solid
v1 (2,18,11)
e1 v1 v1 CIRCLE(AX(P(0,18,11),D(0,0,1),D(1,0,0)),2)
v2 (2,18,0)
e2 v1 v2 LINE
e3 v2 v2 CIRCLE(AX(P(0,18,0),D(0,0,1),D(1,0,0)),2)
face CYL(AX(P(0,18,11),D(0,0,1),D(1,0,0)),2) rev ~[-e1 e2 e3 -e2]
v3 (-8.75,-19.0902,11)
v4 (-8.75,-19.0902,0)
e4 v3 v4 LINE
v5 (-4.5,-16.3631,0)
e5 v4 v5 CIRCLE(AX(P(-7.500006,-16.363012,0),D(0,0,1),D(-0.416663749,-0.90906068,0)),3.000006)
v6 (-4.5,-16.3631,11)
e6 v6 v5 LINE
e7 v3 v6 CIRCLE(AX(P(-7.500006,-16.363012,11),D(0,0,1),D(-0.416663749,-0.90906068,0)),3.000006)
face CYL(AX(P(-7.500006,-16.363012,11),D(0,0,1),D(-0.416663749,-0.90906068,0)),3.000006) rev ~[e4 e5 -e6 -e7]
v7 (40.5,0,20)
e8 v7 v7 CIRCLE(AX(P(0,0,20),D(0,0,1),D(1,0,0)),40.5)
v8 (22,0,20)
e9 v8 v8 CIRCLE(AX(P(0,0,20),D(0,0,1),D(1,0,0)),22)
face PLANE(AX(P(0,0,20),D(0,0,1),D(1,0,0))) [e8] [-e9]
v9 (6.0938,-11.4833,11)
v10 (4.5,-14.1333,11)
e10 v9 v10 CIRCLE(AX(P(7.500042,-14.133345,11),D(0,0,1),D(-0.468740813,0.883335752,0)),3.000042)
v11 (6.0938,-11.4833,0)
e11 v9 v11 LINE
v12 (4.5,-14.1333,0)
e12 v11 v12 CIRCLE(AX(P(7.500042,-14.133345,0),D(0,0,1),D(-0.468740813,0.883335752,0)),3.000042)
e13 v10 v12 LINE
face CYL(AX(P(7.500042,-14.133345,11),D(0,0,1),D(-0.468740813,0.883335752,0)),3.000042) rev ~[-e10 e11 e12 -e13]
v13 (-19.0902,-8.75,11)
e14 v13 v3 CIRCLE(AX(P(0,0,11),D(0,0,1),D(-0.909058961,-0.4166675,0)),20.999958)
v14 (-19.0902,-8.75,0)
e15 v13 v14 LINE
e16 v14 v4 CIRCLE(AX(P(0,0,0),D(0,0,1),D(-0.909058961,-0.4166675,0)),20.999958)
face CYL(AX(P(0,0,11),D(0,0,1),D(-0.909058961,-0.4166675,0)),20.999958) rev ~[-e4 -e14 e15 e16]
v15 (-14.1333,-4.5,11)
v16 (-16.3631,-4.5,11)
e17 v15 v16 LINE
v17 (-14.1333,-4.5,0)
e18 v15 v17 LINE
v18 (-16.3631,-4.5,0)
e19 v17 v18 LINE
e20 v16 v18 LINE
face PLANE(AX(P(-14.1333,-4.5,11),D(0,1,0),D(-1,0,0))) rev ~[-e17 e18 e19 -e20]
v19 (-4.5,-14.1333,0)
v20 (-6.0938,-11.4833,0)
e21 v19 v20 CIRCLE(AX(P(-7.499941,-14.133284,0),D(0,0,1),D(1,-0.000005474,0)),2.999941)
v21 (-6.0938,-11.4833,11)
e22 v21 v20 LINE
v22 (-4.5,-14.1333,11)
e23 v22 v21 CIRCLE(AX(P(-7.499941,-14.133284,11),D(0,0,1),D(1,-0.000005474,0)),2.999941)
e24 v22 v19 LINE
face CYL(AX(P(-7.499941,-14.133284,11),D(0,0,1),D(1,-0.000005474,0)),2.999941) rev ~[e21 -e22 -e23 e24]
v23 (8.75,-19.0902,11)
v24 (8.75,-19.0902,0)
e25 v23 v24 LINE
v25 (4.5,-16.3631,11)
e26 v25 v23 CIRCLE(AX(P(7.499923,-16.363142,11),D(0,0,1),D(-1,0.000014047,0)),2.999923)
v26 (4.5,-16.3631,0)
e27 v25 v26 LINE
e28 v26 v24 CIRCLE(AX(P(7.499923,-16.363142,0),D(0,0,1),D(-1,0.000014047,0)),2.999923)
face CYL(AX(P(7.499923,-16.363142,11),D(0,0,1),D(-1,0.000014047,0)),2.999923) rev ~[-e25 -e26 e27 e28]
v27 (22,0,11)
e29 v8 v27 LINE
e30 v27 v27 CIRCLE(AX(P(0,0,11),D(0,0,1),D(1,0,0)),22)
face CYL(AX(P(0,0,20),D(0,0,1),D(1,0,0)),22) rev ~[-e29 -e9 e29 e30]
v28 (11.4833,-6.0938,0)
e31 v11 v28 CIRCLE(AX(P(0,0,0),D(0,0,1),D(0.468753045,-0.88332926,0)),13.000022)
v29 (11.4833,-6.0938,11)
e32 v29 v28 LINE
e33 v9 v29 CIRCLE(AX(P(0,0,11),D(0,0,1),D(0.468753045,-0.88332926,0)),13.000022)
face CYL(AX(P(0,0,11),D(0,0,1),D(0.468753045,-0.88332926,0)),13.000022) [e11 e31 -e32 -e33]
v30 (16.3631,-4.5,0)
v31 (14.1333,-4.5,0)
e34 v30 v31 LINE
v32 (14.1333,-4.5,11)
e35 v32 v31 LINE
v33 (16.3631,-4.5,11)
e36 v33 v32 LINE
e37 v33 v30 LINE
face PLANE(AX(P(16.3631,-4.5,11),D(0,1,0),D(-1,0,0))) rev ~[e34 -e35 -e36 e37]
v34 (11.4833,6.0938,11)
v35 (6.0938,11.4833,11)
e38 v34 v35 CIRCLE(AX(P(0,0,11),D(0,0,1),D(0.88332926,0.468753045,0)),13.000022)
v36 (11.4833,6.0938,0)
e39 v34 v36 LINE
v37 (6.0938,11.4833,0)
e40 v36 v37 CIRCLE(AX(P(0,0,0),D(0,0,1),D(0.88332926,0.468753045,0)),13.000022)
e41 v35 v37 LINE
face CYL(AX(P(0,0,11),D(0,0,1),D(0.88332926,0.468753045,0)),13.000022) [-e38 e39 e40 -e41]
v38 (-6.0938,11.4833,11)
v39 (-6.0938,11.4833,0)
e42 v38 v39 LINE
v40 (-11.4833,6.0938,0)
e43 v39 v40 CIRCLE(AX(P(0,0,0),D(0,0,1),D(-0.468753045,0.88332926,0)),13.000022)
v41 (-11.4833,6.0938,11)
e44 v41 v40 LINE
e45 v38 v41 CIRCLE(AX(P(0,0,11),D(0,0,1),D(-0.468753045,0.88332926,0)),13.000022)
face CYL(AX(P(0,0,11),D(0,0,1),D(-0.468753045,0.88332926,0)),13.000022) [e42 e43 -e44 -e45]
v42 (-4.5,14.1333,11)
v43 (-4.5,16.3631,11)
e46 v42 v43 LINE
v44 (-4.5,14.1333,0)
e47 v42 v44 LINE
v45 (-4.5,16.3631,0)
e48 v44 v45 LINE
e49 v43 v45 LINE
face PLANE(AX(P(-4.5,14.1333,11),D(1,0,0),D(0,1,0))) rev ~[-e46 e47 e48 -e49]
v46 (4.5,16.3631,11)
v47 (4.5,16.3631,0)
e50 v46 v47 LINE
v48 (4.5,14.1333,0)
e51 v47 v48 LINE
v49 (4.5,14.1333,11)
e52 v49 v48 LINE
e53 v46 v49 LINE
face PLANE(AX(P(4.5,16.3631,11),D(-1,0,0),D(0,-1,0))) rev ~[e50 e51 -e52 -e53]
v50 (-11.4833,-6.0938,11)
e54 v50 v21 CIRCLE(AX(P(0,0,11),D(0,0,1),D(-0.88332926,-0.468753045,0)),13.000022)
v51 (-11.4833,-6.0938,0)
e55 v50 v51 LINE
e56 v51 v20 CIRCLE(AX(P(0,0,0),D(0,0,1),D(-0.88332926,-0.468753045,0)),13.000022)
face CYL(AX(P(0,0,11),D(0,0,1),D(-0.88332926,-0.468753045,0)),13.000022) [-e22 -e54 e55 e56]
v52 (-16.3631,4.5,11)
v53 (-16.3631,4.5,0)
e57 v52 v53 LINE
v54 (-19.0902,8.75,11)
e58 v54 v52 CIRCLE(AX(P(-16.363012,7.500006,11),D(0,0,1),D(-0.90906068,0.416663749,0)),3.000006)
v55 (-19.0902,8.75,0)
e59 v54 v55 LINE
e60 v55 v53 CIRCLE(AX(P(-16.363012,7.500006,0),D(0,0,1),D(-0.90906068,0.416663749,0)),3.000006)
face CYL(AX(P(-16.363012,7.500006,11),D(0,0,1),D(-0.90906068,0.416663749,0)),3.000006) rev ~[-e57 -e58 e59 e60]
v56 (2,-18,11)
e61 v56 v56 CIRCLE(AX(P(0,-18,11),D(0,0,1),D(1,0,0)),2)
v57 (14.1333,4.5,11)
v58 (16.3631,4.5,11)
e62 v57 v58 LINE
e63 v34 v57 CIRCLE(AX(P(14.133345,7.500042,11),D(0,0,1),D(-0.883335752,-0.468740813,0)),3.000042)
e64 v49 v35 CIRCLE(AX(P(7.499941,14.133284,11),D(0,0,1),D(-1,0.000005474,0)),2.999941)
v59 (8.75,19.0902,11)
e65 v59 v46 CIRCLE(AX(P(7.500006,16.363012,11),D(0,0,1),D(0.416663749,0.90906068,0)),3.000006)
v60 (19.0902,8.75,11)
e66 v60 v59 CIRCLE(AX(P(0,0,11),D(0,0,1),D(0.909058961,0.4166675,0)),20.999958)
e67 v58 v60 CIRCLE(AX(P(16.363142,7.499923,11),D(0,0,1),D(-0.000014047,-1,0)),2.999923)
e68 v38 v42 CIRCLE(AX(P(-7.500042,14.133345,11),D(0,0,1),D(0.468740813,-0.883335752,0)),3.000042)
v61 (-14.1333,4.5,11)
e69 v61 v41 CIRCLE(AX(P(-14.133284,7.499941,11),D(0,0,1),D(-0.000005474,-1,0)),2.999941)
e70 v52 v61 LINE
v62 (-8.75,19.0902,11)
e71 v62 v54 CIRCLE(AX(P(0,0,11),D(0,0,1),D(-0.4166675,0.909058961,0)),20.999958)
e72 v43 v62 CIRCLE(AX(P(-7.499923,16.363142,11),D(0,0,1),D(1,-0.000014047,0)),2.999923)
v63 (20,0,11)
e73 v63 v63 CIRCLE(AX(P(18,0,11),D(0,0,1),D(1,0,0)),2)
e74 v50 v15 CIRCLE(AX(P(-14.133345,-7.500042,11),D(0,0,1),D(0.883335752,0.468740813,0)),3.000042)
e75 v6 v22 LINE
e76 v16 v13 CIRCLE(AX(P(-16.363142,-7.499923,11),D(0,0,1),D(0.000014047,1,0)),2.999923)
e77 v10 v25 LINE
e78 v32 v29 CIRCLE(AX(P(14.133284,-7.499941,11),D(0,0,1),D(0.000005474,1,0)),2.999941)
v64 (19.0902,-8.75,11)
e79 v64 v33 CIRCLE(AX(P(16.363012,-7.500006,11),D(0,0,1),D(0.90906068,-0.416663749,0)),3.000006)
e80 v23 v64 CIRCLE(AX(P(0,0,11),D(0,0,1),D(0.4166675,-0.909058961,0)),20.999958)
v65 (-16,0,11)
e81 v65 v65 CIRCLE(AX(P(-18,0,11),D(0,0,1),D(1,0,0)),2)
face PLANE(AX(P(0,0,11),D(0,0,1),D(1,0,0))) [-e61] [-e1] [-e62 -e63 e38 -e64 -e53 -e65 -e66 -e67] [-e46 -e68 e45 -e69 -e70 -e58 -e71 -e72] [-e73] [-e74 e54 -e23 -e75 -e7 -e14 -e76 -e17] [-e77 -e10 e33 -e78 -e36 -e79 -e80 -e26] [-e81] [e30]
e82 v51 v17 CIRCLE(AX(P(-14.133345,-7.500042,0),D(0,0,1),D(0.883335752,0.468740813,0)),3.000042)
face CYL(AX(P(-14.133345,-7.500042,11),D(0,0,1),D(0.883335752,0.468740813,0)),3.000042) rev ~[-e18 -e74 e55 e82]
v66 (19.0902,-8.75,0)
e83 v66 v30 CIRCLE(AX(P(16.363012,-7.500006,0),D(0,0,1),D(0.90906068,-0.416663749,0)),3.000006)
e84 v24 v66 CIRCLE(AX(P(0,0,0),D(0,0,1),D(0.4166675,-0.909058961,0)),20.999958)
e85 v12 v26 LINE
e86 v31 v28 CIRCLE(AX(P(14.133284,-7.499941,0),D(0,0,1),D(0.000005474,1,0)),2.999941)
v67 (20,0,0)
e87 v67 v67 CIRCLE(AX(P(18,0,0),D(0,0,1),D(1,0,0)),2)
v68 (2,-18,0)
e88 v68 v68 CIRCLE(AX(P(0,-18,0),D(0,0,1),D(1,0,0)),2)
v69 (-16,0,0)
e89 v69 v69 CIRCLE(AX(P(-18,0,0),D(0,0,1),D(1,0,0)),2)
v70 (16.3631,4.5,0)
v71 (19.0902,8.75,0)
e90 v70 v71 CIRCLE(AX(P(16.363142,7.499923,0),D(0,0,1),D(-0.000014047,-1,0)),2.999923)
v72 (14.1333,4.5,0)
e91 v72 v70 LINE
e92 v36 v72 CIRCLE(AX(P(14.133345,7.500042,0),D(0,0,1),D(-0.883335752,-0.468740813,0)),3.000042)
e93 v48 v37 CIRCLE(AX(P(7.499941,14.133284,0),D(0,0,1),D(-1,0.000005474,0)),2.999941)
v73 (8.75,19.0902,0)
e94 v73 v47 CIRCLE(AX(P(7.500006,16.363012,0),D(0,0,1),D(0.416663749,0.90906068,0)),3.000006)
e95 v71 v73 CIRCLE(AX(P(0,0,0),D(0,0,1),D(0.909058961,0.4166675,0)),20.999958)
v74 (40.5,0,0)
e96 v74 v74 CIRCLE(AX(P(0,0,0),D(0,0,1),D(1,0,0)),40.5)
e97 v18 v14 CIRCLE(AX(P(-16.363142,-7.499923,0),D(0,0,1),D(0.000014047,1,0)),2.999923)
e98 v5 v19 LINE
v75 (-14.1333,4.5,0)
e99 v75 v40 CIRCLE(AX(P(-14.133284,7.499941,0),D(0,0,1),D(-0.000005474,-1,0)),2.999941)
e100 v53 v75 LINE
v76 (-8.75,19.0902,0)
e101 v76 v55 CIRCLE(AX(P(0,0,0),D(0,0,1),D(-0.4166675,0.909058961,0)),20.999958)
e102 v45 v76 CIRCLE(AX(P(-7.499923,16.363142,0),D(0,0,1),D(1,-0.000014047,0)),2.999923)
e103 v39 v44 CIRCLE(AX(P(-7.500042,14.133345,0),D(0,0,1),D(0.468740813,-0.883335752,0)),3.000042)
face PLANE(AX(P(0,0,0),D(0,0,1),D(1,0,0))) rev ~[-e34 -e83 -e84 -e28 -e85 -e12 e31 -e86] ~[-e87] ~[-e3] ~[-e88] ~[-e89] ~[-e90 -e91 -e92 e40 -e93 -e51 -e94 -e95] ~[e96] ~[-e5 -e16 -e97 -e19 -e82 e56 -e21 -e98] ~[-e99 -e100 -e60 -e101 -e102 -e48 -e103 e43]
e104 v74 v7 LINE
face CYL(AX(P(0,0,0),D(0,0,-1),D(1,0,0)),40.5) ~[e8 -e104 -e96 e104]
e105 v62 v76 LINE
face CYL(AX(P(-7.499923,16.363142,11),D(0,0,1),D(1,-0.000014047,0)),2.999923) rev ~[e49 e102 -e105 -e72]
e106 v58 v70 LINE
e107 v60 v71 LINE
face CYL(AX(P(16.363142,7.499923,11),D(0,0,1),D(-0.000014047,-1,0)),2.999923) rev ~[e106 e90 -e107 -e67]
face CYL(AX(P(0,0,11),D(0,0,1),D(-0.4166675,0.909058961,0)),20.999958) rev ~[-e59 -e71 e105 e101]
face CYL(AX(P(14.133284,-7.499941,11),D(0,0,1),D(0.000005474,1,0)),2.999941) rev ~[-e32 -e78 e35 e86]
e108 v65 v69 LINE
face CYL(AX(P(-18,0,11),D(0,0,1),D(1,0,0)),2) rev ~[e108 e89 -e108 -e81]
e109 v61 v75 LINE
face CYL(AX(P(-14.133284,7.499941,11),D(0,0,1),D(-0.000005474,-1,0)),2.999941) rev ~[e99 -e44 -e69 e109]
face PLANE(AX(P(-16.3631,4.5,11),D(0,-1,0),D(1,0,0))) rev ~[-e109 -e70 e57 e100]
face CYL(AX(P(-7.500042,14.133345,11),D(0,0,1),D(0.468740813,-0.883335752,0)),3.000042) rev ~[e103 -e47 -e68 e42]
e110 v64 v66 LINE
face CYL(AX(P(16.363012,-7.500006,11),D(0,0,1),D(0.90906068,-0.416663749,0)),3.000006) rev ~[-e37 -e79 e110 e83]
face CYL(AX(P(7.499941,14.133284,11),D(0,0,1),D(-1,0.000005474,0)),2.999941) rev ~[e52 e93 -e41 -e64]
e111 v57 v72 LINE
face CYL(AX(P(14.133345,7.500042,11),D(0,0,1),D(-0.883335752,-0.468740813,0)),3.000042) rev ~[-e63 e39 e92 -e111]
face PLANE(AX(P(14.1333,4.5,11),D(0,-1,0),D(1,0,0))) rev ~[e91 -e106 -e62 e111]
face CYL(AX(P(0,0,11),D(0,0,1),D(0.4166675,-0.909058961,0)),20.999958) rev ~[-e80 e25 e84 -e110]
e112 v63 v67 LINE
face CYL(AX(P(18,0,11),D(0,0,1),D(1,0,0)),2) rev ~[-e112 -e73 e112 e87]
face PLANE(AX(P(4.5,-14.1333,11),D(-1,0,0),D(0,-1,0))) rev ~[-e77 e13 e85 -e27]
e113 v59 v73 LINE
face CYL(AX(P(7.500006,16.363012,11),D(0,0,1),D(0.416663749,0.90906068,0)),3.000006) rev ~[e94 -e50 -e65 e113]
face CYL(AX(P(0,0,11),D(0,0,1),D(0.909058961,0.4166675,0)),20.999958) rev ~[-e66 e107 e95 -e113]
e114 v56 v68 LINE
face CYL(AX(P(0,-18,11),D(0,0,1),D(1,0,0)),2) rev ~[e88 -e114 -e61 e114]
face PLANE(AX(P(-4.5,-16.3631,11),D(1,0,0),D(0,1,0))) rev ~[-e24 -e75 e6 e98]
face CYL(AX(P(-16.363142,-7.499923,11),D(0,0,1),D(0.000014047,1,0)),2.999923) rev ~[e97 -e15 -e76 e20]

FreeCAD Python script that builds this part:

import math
import FreeCAD as App
import Part
import Sketcher

V = App.Vector
Q = App.Units.Quantity

doc = App.newDocument("Part")
body = doc.addObject("PartDesign::Body", "Body")

sketch1 = doc.addObject("Sketcher::SketchObject", "Sketch")
body.addObject(sketch1)
sketch1.AttachmentSupport = (doc.XY_Plane, [""])
sketch1.MapMode = "FlatFace"
sketch1.addGeometry(Part.Circle(V(0, 0, 0), V(0, 0, 1), 40), False)
sketch1.addConstraint([
    Sketcher.Constraint("Coincident", 0, 3, -1, 1),
    Sketcher.Constraint("Diameter", 0, Q("81 mm")),
])
pad1 = doc.addObject("PartDesign::Pad", "Pad")
body.addObject(pad1)
pad1.Profile = sketch1
pad1.Length = 20

sketch2 = doc.addObject("Sketcher::SketchObject", "Sketch001")
body.addObject(sketch2)
sketch2.AttachmentSupport = (doc.XY_Plane, [""])
sketch2.MapMode = "FlatFace"
sketch2.AttachmentOffset = App.Placement(V(0, 0, 20), App.Rotation())
sketch2.addGeometry(Part.Circle(V(0, 0, 0), V(0, 0, 1), 22), False)
sketch2.addConstraint([
    Sketcher.Constraint("Coincident", 0, 3, -1, 1),
    Sketcher.Constraint("Diameter", 0, Q("44 mm")),
])
pocket1 = doc.addObject("PartDesign::Pocket", "Pocket")
body.addObject(pocket1)
pocket1.Profile = sketch2
pocket1.Length = 9

sketch3 = doc.addObject("Sketcher::SketchObject", "Sketch002")
body.addObject(sketch3)
sketch3.AttachmentSupport = (doc.XY_Plane, [""])
sketch3.MapMode = "FlatFace"
sketch3.AttachmentOffset = App.Placement(V(0, 0, 11), App.Rotation())
sketch3.addGeometry([
    Part.Circle(V(0, 18, 0), V(0, 0, 1), 2),
    Part.Circle(V(-18, 0, 0), V(0, 0, 1), 2),
    Part.Circle(V(0, -18, 0), V(0, 0, 1), 2),
    Part.Circle(V(18, 0, 0), V(0, 0, 1), 2),
], False)
sketch3.addConstraint([
    Sketcher.Constraint("Equal", 0, 1),
    Sketcher.Constraint("Equal", 1, 2),
    Sketcher.Constraint("Equal", 2, 3),
    Sketcher.Constraint("Symmetric", 0, 3, 2, 3, -1, 1),
    Sketcher.Constraint("Symmetric", 1, 3, 3, 3, -1, 1),
    Sketcher.Constraint("PointOnObject", 0, 3, -2),
    Sketcher.Constraint("PointOnObject", 1, 3, -1),
    Sketcher.Constraint("Diameter", 0, Q("4 mm")),
    Sketcher.Constraint("DistanceY", -1, 1, 0, 3, Q("18 mm")),
    Sketcher.Constraint("DistanceX", 1, 3, -1, 1, Q("18 mm")),
])
pocket2 = doc.addObject("PartDesign::Pocket", "Pocket001")
body.addObject(pocket2)
pocket2.Profile = sketch3
pocket2.Length = 12.75

sketch4 = doc.addObject("Sketcher::SketchObject", "Sketch003")
body.addObject(sketch4)
sketch4.AttachmentSupport = (doc.XY_Plane, [""])
sketch4.MapMode = "FlatFace"
sketch4.AttachmentOffset = App.Placement(V(0, 0, 11), App.Rotation())
sketch4.addGeometry([
    Part.LineSegment(V(-16.4, 4.5, 0), V(-14.1, 4.5, 0)),
    Part.ArcOfCircle(Part.Circle(V(-14.1, 7.5, 0), V(0, 0, 1), 3), math.radians(-90), math.radians(-28)),
    Part.ArcOfCircle(Part.Circle(V(0, 0, 0), V(0, 0, 1), 13), math.radians(118), math.radians(152)),
    Part.ArcOfCircle(Part.Circle(V(-7.5, 14.1, 0), V(0, 0, 1), 3), math.radians(-62), math.radians(0)),
    Part.LineSegment(V(-4.5, 14.1, 0), V(-4.5, 16.4, 0)),
    Part.ArcOfCircle(Part.Circle(V(-7.5, 16.4, 0), V(0, 0, 1), 3), math.radians(0), math.radians(115)),
    Part.ArcOfCircle(Part.Circle(V(0, 0, 0), V(0, 0, 1), 21), math.radians(115), math.radians(155)),
    Part.ArcOfCircle(Part.Circle(V(-16.4, 7.5, 0), V(0, 0, 1), 3), math.radians(155), math.radians(270)),
    Part.ArcOfCircle(Part.Circle(V(0, 0, 0), V(0, 0, 1), 13), math.radians(-152), math.radians(-118)),
    Part.ArcOfCircle(Part.Circle(V(-14.1, -7.5, 0), V(0, 0, 1), 3), math.radians(28), math.radians(90)),
    Part.LineSegment(V(-14.1, -4.5, 0), V(-16.4, -4.5, 0)),
    Part.ArcOfCircle(Part.Circle(V(-16.4, -7.5, 0), V(0, 0, 1), 3), math.radians(90), math.radians(205)),
    Part.ArcOfCircle(Part.Circle(V(0, 0, 0), V(0, 0, 1), 21), math.radians(-155), math.radians(-115)),
    Part.ArcOfCircle(Part.Circle(V(-7.5, -16.4, 0), V(0, 0, 1), 3), math.radians(-115), math.radians(0)),
    Part.LineSegment(V(-4.5, -16.4, 0), V(-4.5, -14.1, 0)),
    Part.ArcOfCircle(Part.Circle(V(-7.5, -14.1, 0), V(0, 0, 1), 3), math.radians(0), math.radians(62)),
    Part.ArcOfCircle(Part.Circle(V(0, 0, 0), V(0, 0, 1), 13), math.radians(-62), math.radians(-28)),
    Part.ArcOfCircle(Part.Circle(V(7.5, -14.1, 0), V(0, 0, 1), 3), math.radians(118), math.radians(180)),
    Part.LineSegment(V(4.5, -14.1, 0), V(4.5, -16.4, 0)),
    Part.ArcOfCircle(Part.Circle(V(7.5, -16.4, 0), V(0, 0, 1), 3), math.radians(180), math.radians(295)),
    Part.ArcOfCircle(Part.Circle(V(0, 0, 0), V(0, 0, 1), 21), math.radians(-65), math.radians(-25)),
    Part.ArcOfCircle(Part.Circle(V(16.4, -7.5, 0), V(0, 0, 1), 3), math.radians(-25), math.radians(90)),
    Part.LineSegment(V(16.4, -4.5, 0), V(14.1, -4.5, 0)),
    Part.ArcOfCircle(Part.Circle(V(14.1, -7.5, 0), V(0, 0, 1), 3), math.radians(90), math.radians(152)),
    Part.ArcOfCircle(Part.Circle(V(0, 0, 0), V(0, 0, 1), 13), math.radians(28), math.radians(62)),
    Part.ArcOfCircle(Part.Circle(V(14.1, 7.5, 0), V(0, 0, 1), 3), math.radians(-152), math.radians(-90)),
    Part.LineSegment(V(14.1, 4.5, 0), V(16.4, 4.5, 0)),
    Part.ArcOfCircle(Part.Circle(V(16.4, 7.5, 0), V(0, 0, 1), 3), math.radians(-90), math.radians(25)),
    Part.ArcOfCircle(Part.Circle(V(0, 0, 0), V(0, 0, 1), 21), math.radians(25), math.radians(65)),
    Part.ArcOfCircle(Part.Circle(V(7.5, 16.4, 0), V(0, 0, 1), 3), math.radians(65), math.radians(180)),
    Part.LineSegment(V(4.5, 16.4, 0), V(4.5, 14.1, 0)),
    Part.ArcOfCircle(Part.Circle(V(7.5, 14.1, 0), V(0, 0, 1), 3), math.radians(180), math.radians(242)),
], False)
sketch4.addConstraint([
    Sketcher.Constraint("Tangent", 0, 2, 1, 1),
    Sketcher.Constraint("Tangent", 1, 2, 2, 2),
    Sketcher.Constraint("Tangent", 2, 1, 3, 1),
    Sketcher.Constraint("Tangent", 3, 2, 4, 1),
    Sketcher.Constraint("Tangent", 4, 2, 5, 1),
    Sketcher.Constraint("Tangent", 5, 2, 6, 1),
    Sketcher.Constraint("Tangent", 6, 2, 7, 1),
    Sketcher.Constraint("Tangent", 7, 2, 0, 1),
    Sketcher.Constraint("Tangent", 8, 1, 9, 1),
    Sketcher.Constraint("Tangent", 9, 2, 10, 1),
    Sketcher.Constraint("Tangent", 10, 2, 11, 1),
    Sketcher.Constraint("Tangent", 11, 2, 12, 1),
    Sketcher.Constraint("Tangent", 12, 2, 13, 1),
    Sketcher.Constraint("Tangent", 13, 2, 14, 1),
    Sketcher.Constraint("Tangent", 14, 2, 15, 1),
    Sketcher.Constraint("Tangent", 15, 2, 8, 2),
    Sketcher.Constraint("Tangent", 16, 1, 17, 1),
    Sketcher.Constraint("Tangent", 17, 2, 18, 1),
    Sketcher.Constraint("Tangent", 18, 2, 19, 1),
    Sketcher.Constraint("Tangent", 19, 2, 20, 1),
    Sketcher.Constraint("Tangent", 20, 2, 21, 1),
    Sketcher.Constraint("Tangent", 21, 2, 22, 1),
    Sketcher.Constraint("Tangent", 22, 2, 23, 1),
    Sketcher.Constraint("Tangent", 23, 2, 16, 2),
    Sketcher.Constraint("Tangent", 24, 1, 25, 1),
    Sketcher.Constraint("Tangent", 25, 2, 26, 1),
    Sketcher.Constraint("Tangent", 26, 2, 27, 1),
    Sketcher.Constraint("Tangent", 27, 2, 28, 1),
    Sketcher.Constraint("Tangent", 28, 2, 29, 1),
    Sketcher.Constraint("Tangent", 29, 2, 30, 1),
    Sketcher.Constraint("Tangent", 30, 2, 31, 1),
    Sketcher.Constraint("Tangent", 31, 2, 24, 2),
    Sketcher.Constraint("Horizontal", 0),
    Sketcher.Constraint("Vertical", 4),
    Sketcher.Constraint("Horizontal", 10),
    Sketcher.Constraint("Vertical", 14),
    Sketcher.Constraint("Vertical", 18),
    Sketcher.Constraint("Horizontal", 22),
    Sketcher.Constraint("Horizontal", 26),
    Sketcher.Constraint("Vertical", 30),
    Sketcher.Constraint("Coincident", 2, 3, -1, 1),
    Sketcher.Constraint("Coincident", 6, 3, -1, 1),
    Sketcher.Constraint("Coincident", 8, 3, -1, 1),
    Sketcher.Constraint("Coincident", 12, 3, -1, 1),
    Sketcher.Constraint("Coincident", 16, 3, -1, 1),
    Sketcher.Constraint("Coincident", 20, 3, -1, 1),
    Sketcher.Constraint("Coincident", 24, 3, -1, 1),
    Sketcher.Constraint("Coincident", 28, 3, -1, 1),
    Sketcher.Constraint("Equal", 1, 3),
    Sketcher.Constraint("Equal", 3, 5),
    Sketcher.Constraint("Equal", 5, 7),
    Sketcher.Constraint("Equal", 2, 8),
    Sketcher.Constraint("Equal", 7, 9),
    Sketcher.Constraint("Equal", 9, 11),
    Sketcher.Constraint("Equal", 6, 12),
    Sketcher.Constraint("Equal", 11, 13),
    Sketcher.Constraint("Equal", 13, 15),
    Sketcher.Constraint("Equal", 8, 16),
    Sketcher.Constraint("Equal", 15, 17),
    Sketcher.Constraint("Equal", 17, 19),
    Sketcher.Constraint("Equal", 12, 20),
    Sketcher.Constraint("Equal", 19, 21),
    Sketcher.Constraint("Equal", 21, 23),
    Sketcher.Constraint("Equal", 16, 24),
    Sketcher.Constraint("Equal", 23, 25),
    Sketcher.Constraint("Equal", 25, 27),
    Sketcher.Constraint("Equal", 20, 28),
    Sketcher.Constraint("Equal", 27, 29),
    Sketcher.Constraint("Equal", 29, 31),
    Sketcher.Constraint("Horizontal", 15, 3, 17, 3),
    Sketcher.Constraint("Horizontal", 11, 3, 21, 3),
    Sketcher.Constraint("Horizontal", 7, 3, 25, 3),
    Sketcher.Constraint("Horizontal", 5, 3, 29, 3),
    Sketcher.Constraint("Vertical", 1, 3, 9, 3),
    Sketcher.Constraint("Vertical", 5, 3, 13, 3),
    Sketcher.Constraint("Equal", 26, 4),
    Sketcher.Constraint("Radius", 1, Q("3 mm")),
    Sketcher.Constraint("Radius", 2, Q("13 mm")),
    Sketcher.Constraint("Radius", 6, Q("21 mm")),
    Sketcher.Constraint("DistanceY", 9, 3, 1, 3, Q("15 mm")),
])
pocket3 = doc.addObject("PartDesign::Pocket", "Pocket002")
body.addObject(pocket3)
pocket3.Profile = sketch4
pocket3.Length = 12.75

doc.recompute()
